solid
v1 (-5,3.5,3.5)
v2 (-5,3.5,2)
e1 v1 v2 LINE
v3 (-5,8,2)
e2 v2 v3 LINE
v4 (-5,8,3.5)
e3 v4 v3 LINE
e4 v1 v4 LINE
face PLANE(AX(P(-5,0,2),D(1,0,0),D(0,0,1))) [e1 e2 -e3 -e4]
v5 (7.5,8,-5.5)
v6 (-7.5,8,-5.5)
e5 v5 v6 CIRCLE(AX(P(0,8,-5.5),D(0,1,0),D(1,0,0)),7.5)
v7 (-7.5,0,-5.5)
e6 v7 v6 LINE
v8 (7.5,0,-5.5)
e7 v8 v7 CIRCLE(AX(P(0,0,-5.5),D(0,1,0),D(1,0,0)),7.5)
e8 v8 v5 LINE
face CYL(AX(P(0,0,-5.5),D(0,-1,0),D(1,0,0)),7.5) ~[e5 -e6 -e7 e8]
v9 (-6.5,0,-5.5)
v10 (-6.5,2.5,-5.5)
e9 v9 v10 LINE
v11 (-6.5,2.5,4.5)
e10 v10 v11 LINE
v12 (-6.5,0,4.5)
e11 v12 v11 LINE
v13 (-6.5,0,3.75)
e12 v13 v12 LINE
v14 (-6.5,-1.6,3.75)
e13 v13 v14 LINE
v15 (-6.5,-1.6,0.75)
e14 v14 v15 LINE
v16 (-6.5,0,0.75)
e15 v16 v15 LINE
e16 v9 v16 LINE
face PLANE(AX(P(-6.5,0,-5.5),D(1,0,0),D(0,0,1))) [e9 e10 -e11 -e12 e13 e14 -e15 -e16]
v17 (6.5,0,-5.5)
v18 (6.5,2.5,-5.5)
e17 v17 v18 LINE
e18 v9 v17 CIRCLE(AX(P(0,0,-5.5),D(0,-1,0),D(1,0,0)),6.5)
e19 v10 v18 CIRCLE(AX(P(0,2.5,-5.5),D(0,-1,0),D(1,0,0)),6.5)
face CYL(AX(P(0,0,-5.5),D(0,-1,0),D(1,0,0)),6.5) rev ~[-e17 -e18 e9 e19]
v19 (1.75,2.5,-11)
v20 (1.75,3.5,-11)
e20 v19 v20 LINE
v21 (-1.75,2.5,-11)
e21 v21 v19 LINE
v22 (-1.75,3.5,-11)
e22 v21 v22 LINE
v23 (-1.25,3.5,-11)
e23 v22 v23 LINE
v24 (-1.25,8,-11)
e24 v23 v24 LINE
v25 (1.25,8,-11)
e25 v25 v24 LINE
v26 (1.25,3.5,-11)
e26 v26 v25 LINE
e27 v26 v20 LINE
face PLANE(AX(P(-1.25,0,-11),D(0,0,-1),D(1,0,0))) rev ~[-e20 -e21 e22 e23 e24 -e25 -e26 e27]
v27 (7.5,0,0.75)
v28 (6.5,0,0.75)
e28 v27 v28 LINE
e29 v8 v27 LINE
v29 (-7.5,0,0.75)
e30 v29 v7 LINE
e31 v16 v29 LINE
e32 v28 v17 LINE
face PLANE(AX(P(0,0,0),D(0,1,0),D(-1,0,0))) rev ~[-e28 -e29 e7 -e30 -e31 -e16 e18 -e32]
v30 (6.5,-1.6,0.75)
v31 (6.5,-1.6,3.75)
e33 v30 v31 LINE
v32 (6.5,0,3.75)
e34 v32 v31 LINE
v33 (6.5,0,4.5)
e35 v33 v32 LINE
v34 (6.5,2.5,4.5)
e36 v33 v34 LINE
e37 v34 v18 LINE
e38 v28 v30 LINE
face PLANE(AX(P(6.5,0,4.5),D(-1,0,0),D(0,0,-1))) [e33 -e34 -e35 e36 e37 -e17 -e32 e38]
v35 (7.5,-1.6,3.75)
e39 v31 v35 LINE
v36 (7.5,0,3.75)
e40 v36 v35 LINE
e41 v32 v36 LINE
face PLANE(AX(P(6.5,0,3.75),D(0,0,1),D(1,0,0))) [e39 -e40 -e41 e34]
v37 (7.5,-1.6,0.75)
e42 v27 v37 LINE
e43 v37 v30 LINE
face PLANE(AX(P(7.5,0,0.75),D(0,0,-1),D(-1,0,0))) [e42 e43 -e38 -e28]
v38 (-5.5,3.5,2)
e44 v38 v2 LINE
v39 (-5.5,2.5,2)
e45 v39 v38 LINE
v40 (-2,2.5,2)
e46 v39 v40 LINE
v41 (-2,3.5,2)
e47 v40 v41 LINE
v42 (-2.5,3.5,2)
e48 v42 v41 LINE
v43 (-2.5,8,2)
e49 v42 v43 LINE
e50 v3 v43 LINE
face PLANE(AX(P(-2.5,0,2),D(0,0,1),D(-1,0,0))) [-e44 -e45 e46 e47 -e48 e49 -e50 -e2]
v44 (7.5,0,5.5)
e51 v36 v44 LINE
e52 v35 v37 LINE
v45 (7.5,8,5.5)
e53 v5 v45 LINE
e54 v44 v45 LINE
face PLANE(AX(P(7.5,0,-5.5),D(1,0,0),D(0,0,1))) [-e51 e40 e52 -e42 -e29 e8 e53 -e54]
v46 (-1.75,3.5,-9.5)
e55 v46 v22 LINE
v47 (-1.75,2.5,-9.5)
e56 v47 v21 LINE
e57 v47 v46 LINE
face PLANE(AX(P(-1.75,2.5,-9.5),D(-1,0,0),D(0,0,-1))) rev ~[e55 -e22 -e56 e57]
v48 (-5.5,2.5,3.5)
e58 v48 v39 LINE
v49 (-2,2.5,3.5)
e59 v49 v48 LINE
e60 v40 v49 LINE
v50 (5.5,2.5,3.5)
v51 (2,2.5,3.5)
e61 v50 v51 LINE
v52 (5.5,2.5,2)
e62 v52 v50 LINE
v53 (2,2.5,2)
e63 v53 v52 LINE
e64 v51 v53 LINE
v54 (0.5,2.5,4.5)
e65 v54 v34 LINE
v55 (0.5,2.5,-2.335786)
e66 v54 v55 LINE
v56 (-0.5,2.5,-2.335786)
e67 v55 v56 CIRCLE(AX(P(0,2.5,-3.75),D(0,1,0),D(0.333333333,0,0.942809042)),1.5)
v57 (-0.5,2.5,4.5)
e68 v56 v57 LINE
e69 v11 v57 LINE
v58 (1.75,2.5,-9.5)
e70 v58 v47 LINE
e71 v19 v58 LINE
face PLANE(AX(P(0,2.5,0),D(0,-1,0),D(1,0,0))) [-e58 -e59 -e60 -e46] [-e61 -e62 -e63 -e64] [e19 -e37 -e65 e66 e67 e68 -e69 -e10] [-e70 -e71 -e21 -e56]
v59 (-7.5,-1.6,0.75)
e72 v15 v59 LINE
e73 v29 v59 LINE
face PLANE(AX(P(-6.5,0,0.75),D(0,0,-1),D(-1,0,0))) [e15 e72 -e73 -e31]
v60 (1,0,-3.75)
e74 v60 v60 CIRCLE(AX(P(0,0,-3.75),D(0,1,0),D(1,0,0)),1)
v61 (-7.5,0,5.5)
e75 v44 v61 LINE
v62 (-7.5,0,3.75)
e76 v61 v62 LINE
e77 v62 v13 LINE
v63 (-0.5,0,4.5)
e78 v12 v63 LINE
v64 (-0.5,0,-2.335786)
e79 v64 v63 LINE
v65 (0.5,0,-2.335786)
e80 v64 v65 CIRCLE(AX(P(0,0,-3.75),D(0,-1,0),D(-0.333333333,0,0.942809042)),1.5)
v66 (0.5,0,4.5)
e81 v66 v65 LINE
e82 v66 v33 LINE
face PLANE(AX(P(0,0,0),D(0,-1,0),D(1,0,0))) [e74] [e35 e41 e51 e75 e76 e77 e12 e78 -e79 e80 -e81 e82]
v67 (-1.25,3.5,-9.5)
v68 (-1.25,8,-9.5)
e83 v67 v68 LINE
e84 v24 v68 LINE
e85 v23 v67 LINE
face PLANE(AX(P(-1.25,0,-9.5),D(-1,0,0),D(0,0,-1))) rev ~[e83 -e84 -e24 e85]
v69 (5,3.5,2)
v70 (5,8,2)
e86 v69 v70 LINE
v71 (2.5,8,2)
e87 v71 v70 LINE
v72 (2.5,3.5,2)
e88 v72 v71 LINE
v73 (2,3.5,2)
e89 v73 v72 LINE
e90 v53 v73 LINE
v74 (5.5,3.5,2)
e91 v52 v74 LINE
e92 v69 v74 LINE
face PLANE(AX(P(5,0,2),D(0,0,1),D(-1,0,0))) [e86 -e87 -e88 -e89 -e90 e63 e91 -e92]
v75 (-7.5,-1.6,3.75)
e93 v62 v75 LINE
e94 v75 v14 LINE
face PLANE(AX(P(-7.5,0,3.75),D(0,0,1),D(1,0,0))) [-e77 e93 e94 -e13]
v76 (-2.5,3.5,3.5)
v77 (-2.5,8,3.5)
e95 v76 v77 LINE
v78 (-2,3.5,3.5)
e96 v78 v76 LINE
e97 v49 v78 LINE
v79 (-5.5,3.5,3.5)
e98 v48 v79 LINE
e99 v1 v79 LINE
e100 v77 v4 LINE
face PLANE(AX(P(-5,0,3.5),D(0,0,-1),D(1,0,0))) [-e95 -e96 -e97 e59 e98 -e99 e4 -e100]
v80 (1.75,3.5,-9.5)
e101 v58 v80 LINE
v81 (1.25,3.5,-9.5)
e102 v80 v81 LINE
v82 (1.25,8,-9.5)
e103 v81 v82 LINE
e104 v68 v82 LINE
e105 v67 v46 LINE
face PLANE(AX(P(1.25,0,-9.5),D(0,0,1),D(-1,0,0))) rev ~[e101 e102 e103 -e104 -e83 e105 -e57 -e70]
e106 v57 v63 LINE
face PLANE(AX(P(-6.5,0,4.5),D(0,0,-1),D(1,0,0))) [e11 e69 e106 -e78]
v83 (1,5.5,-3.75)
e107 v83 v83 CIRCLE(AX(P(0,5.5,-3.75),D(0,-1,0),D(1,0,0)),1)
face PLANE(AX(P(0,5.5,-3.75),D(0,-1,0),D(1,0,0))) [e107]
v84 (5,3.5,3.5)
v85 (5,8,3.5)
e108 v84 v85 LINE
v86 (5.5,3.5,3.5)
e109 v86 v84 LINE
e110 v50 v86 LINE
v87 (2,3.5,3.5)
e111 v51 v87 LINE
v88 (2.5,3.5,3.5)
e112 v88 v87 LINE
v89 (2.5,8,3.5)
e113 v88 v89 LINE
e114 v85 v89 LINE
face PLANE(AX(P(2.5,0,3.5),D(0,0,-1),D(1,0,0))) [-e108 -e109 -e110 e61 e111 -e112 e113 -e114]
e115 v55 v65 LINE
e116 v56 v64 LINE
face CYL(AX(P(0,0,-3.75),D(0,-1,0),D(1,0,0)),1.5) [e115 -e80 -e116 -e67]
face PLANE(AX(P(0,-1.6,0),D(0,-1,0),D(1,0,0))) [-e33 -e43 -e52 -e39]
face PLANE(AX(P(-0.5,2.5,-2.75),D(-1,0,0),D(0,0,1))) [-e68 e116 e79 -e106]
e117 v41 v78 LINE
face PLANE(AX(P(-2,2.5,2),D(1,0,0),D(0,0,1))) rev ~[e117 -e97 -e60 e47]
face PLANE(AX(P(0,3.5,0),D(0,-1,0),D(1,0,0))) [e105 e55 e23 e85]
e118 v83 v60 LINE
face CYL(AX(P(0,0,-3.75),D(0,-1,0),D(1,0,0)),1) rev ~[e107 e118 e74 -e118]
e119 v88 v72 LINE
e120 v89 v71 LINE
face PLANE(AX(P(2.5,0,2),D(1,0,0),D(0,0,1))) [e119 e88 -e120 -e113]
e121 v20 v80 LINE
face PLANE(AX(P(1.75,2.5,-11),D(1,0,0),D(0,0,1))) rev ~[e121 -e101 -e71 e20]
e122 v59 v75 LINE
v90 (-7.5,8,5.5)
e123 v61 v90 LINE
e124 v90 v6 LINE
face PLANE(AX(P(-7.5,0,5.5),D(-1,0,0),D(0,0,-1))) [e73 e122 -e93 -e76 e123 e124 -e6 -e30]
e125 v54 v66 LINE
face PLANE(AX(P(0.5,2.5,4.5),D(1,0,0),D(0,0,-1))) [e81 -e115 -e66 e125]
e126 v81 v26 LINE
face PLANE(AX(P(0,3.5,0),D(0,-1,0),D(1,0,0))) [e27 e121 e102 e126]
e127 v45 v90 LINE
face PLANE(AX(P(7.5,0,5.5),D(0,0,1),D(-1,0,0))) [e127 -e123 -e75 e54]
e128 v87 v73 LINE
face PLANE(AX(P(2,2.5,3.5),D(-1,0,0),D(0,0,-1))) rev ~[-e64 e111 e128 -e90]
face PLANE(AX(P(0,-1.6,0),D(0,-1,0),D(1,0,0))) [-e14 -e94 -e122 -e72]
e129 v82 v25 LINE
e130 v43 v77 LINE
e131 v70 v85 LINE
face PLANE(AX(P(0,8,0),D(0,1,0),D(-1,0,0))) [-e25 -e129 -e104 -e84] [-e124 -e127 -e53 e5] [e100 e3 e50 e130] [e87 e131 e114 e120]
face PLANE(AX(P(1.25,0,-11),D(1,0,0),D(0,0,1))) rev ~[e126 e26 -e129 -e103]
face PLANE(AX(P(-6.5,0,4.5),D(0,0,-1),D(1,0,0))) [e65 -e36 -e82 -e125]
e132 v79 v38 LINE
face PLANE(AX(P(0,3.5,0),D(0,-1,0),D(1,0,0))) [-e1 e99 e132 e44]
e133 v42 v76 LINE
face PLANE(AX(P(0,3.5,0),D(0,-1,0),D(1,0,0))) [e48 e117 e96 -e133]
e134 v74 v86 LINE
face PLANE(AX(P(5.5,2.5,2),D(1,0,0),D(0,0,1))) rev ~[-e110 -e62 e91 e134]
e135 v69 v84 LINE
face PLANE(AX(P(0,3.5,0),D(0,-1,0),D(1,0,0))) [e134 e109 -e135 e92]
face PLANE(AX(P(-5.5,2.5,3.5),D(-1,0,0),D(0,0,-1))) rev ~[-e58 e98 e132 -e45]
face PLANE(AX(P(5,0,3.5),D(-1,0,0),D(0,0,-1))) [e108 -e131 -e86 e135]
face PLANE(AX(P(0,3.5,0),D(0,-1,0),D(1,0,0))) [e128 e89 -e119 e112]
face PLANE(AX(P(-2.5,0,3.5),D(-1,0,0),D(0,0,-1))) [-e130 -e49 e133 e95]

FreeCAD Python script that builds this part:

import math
import FreeCAD as App
import Part
import Sketcher

V = App.Vector
Q = App.Units.Quantity


def add_polygon(sketch, points):
    """Adds a closed chain of lines whose ends are joined by coincident constraints."""
    first, n = sketch.GeometryCount, len(points)
    for a, b in zip(points, points[1:] + points[:1]):
        sketch.addGeometry(Part.LineSegment(App.Vector(*a, 0), App.Vector(*b, 0)), False)
    for i in range(n):
        sketch.addConstraint(Sketcher.Constraint("Coincident", first + i, 2, first + (i + 1) % n, 1))

doc = App.newDocument("Part")
params = doc.addObject("Spreadsheet::Sheet", "Params")
for row, (alias, value) in enumerate([
    ("sketch1_radius", "7.5 mm"),
    ("sketch1_height", "11 mm"),
    ("pad1_length", "8 mm"),
    ("sketch2_width", "1 mm"),
    ("sketch2_height", "3 mm"),
    ("pad2_length", "1.6 mm"),
    ("sketch3_diameter", "2 mm"),
    ("sketch3_diameter2", "3 mm"),
    ("sketch3_radius", "6.5 mm"),
    ("sketch3_height", "10 mm"),
    ("pocket1_length", "2.5 mm"),
    ("sketch4_width", "2.5 mm"),
    ("sketch4_height", "1.5 mm"),
    ("pocket2_length", "10 mm"),
    ("sketch5_width", "3.5 mm"),
    ("sketch5_height", "1.5 mm"),
    ("pocket3_length", "1 mm"),
    ("sketch6_width", "1 mm"),
    ("sketch6_height", "7.25 mm"),
    ("pad3_length", "2.5 mm"),
    ("sketch7_diameter", "2 mm"),
    ("pocket4_length", "3 mm"),
], start=1):
    params.set(f"A{row}", alias)
    params.set(f"B{row}", "=" + value)
    params.setAlias(f"B{row}", alias)

body = doc.addObject("PartDesign::Body", "Body")

sketch1 = body.newObject("Sketcher::SketchObject", "Sketch")
sketch1.AttachmentSupport = (doc.getObject("XZ_Plane"), [""])
sketch1.MapMode = "FlatFace"
sketch1.addGeometry(Part.LineSegment(V(-8, 6, 0), V(8, 6, 0)), False)
sketch1.addGeometry(Part.LineSegment(V(8, 6, 0), V(8, -6, 0)), False)
sketch1.addGeometry(Part.ArcOfCircle(Part.Circle(V(0, -6, 0), V(0, 0, 1), 8), math.radians(180), math.radians(360)), False)
sketch1.addGeometry(Part.LineSegment(V(-8, -6, 0), V(-8, 6, 0)), False)
sketch1.addConstraint(Sketcher.Constraint("Coincident", 0, 2, 1, 1))
sketch1.addConstraint(Sketcher.Constraint("Tangent", 1, 2, 2, 2))
sketch1.addConstraint(Sketcher.Constraint("Tangent", 2, 1, 3, 1))
sketch1.addConstraint(Sketcher.Constraint("Coincident", 3, 2, 0, 1))
sketch1.addConstraint(Sketcher.Constraint("Horizontal", 0))
sketch1.addConstraint(Sketcher.Constraint("Vertical", 1))
sketch1.addConstraint(Sketcher.Constraint("Vertical", 3))
sketch1.addConstraint(Sketcher.Constraint("Symmetric", 0, 2, 2, 1, -1, 1))
sketch1.addConstraint(Sketcher.Constraint("Radius", 2, Q("7.5 mm")))
sketch1.addConstraint(Sketcher.Constraint("DistanceY", 1, 2, 1, 1, Q("11 mm")))
sketch1.setExpression("Constraints[8]", "Params.sketch1_radius")
sketch1.setExpression("Constraints[9]", "Params.sketch1_height")
pad1 = body.newObject("PartDesign::Pad", "Pad")
pad1.Profile = sketch1
pad1.setExpression("Length", "Params.pad1_length")
pad1.Reversed = True

sketch2 = body.newObject("Sketcher::SketchObject", "Sketch001")
sketch2.AttachmentSupport = (doc.getObject("XZ_Plane"), [""])
sketch2.MapMode = "FlatFace"
add_polygon(sketch2, [(-7.5, 3.8), (-7.5, 0.8), (-6.5, 0.8), (-6.5, 3.8)])
add_polygon(sketch2, [(7.5, 0.8), (7.5, 3.8), (6.5, 3.8), (6.5, 0.8)])
sketch2.addConstraint(Sketcher.Constraint("Vertical", 0))
sketch2.addConstraint(Sketcher.Constraint("Horizontal", 1))
sketch2.addConstraint(Sketcher.Constraint("Vertical", 2))
sketch2.addConstraint(Sketcher.Constraint("Horizontal", 3))
sketch2.addConstraint(Sketcher.Constraint("Vertical", 4))
sketch2.addConstraint(Sketcher.Constraint("Horizontal", 5))
sketch2.addConstraint(Sketcher.Constraint("Vertical", 6))
sketch2.addConstraint(Sketcher.Constraint("Horizontal", 7))
sketch2.addConstraint(Sketcher.Constraint("Symmetric", 3, 2, 4, 2, -2))
sketch2.addConstraint(Sketcher.Constraint("Symmetric", 1, 2, 6, 2, -2))
sketch2.addConstraint(Sketcher.Constraint("DistanceX", 1, 1, 1, 2, Q("1 mm")))
sketch2.addConstraint(Sketcher.Constraint("DistanceY", 0, 2, 0, 1, Q("3 mm")))
sketch2.addConstraint(Sketcher.Constraint("DistanceX", 3, 2, 4, 2, Q("15 mm")))
sketch2.addConstraint(Sketcher.Constraint("DistanceY", -1, 1, 0, 2, Q("0.75 mm")))
sketch2.setExpression("Constraints[18]", "Params.sketch2_width")
sketch2.setExpression("Constraints[19]", "Params.sketch2_height")
pad2 = body.newObject("PartDesign::Pad", "Pad001")
pad2.Profile = sketch2
pad2.setExpression("Length", "Params.pad2_length")

sketch3 = body.newObject("Sketcher::SketchObject", "Sketch002")
sketch3.AttachmentSupport = (doc.getObject("XZ_Plane"), [""])
sketch3.MapMode = "FlatFace"
sketch3.addGeometry(Part.Circle(V(0, -3.8, 0), V(0, 0, 1), 1), False)
sketch3.addGeometry(Part.LineSegment(V(6.5, 4.5, 0), V(-6.5, 4.5, 0)), False)
sketch3.addGeometry(Part.LineSegment(V(-6.5, 4.5, 0), V(-6.5, -5.5, 0)), False)
sketch3.addGeometry(Part.ArcOfCircle(Part.Circle(V(0, -5.5, 0), V(0, 0, 1), 6.5), math.radians(180), math.radians(360)), False)
sketch3.addGeometry(Part.LineSegment(V(6.5, -5.5, 0), V(6.5, 4.5, 0)), False)
sketch3.addGeometry(Part.Circle(V(0, -3.8, 0), V(0, 0, 1), 1.5), False)
sketch3.addConstraint(Sketcher.Constraint("Coincident", 1, 2, 2, 1))
sketch3.addConstraint(Sketcher.Constraint("Tangent", 2, 2, 3, 1))
sketch3.addConstraint(Sketcher.Constraint("Tangent", 3, 2, 4, 1))
sketch3.addConstraint(Sketcher.Constraint("Coincident", 4, 2, 1, 1))
sketch3.addConstraint(Sketcher.Constraint("Horizontal", 1))
sketch3.addConstraint(Sketcher.Constraint("Vertical", 2))
sketch3.addConstraint(Sketcher.Constraint("Vertical", 4))
sketch3.addConstraint(Sketcher.Constraint("Coincident", 5, 3, 0, 3))
sketch3.addConstraint(Sketcher.Constraint("PointOnObject", 0, 3, -2))
sketch3.addConstraint(Sketcher.Constraint("PointOnObject", 3, 3, -2))
sketch3.addConstraint(Sketcher.Constraint("Diameter", 0, Q("2 mm")))
sketch3.addConstraint(Sketcher.Constraint("Diameter", 5, Q("3 mm")))
sketch3.addConstraint(Sketcher.Constraint("Radius", 3, Q("6.5 mm")))
sketch3.addConstraint(Sketcher.Constraint("DistanceY", 2, 2, 2, 1, Q("10 mm")))
sketch3.addConstraint(Sketcher.Constraint("DistanceY", 0, 3, -1, 1, Q("3.75 mm")))
sketch3.addConstraint(Sketcher.Constraint("DistanceY", 3, 3, -1, 1, Q("5.5 mm")))
sketch3.setExpression("Constraints[10]", "Params.sketch3_diameter")
sketch3.setExpression("Constraints[11]", "Params.sketch3_diameter2")
sketch3.setExpression("Constraints[12]", "Params.sketch3_radius")
sketch3.setExpression("Constraints[13]", "Params.sketch3_height")
pocket1 = body.newObject("PartDesign::Pocket", "Pocket")
pocket1.Profile = sketch3
pocket1.setExpression("Length", "Params.pocket1_length")

sketch4 = body.newObject("Sketcher::SketchObject", "Sketch003")
sketch4.AttachmentSupport = (doc.getObject("XZ_Plane"), [""])
sketch4.MapMode = "FlatFace"
add_polygon(sketch4, [(-2.5, 3.5), (-5, 3.5), (-5, 2), (-2.5, 2)])
add_polygon(sketch4, [(5, 3.5), (2.5, 3.5), (2.5, 2), (5, 2)])
add_polygon(sketch4, [(-1.2, -9.5), (-1.2, -11), (1.2, -11), (1.2, -9.5)])
sketch4.addConstraint(Sketcher.Constraint("Horizontal", 0))
sketch4.addConstraint(Sketcher.Constraint("Vertical", 1))
sketch4.addConstraint(Sketcher.Constraint("Horizontal", 2))
sketch4.addConstraint(Sketcher.Constraint("Vertical", 3))
sketch4.addConstraint(Sketcher.Constraint("Horizontal", 4))
sketch4.addConstraint(Sketcher.Constraint("Vertical", 5))
sketch4.addConstraint(Sketcher.Constraint("Horizontal", 6))
sketch4.addConstraint(Sketcher.Constraint("Vertical", 7))
sketch4.addConstraint(Sketcher.Constraint("Vertical", 8))
sketch4.addConstraint(Sketcher.Constraint("Horizontal", 9))
sketch4.addConstraint(Sketcher.Constraint("Vertical", 10))
sketch4.addConstraint(Sketcher.Constraint("Horizontal", 11))
sketch4.addConstraint(Sketcher.Constraint("Symmetric", 3, 2, 4, 2, -2))
sketch4.addConstraint(Sketcher.Constraint("Symmetric", 1, 2, 6, 2, -2))
sketch4.addConstraint(Sketcher.Constraint("Equal", 6, 9))
sketch4.addConstraint(Sketcher.Constraint("Equal", 7, 8))
sketch4.addConstraint(Sketcher.Constraint("DistanceX", 0, 2, 0, 1, Q("2.5 mm")))
sketch4.addConstraint(Sketcher.Constraint("DistanceY", 1, 2, 1, 1, Q("1.5 mm")))
sketch4.addConstraint(Sketcher.Constraint("DistanceY", 8, 2, 2, 2, Q("13 mm")))
sketch4.addConstraint(Sketcher.Constraint("DistanceX", 2, 2, -1, 1, Q("2.5 mm")))
sketch4.addConstraint(Sketcher.Constraint("DistanceX", 1, 2, 8, 2, Q("3.75 mm")))
sketch4.addConstraint(Sketcher.Constraint("DistanceY", -1, 1, 1, 2, Q("2 mm")))
sketch4.setExpression("Constraints[28]", "Params.sketch4_width")
sketch4.setExpression("Constraints[29]", "Params.sketch4_height")
pocket2 = body.newObject("PartDesign::Pocket", "Pocket001")
pocket2.Profile = sketch4
pocket2.setExpression("Length", "Params.pocket2_length")

sketch5 = body.newObject("Sketcher::SketchObject", "Sketch004")
sketch5.AttachmentSupport = (doc.getObject("XZ_Plane"), [""])
sketch5.MapMode = "FlatFace"
sketch5.AttachmentOffset = App.Placement(V(0, 0, -2.5), App.Rotation())
add_polygon(sketch5, [(5.5, 2), (5.5, 3.5), (2, 3.5), (2, 2)])
add_polygon(sketch5, [(1.8, -11), (1.8, -9.5), (-1.8, -9.5), (-1.8, -11)])
add_polygon(sketch5, [(-2, 2), (-2, 3.5), (-5.5, 3.5), (-5.5, 2)])
sketch5.addConstraint(Sketcher.Constraint("Vertical", 0))
sketch5.addConstraint(Sketcher.Constraint("Horizontal", 1))
sketch5.addConstraint(Sketcher.Constraint("Vertical", 2))
sketch5.addConstraint(Sketcher.Constraint("Horizontal", 3))
sketch5.addConstraint(Sketcher.Constraint("Vertical", 4))
sketch5.addConstraint(Sketcher.Constraint("Horizontal", 5))
sketch5.addConstraint(Sketcher.Constraint("Vertical", 6))
sketch5.addConstraint(Sketcher.Constraint("Horizontal", 7))
sketch5.addConstraint(Sketcher.Constraint("Vertical", 8))
sketch5.addConstraint(Sketcher.Constraint("Horizontal", 9))
sketch5.addConstraint(Sketcher.Constraint("Vertical", 10))
sketch5.addConstraint(Sketcher.Constraint("Horizontal", 11))
sketch5.addConstraint(Sketcher.Constraint("Symmetric", 1, 2, 8, 2, -2))
sketch5.addConstraint(Sketcher.Constraint("Symmetric", 3, 2, 10, 2, -2))
sketch5.addConstraint(Sketcher.Constraint("Equal", 3, 5))
sketch5.addConstraint(Sketcher.Constraint("Equal", 2, 4))
sketch5.addConstraint(Sketcher.Constraint("DistanceX", 1, 2, 1, 1, Q("3.5 mm")))
sketch5.addConstraint(Sketcher.Constraint("DistanceY", 0, 1, 0, 2, Q("1.5 mm")))
sketch5.addConstraint(Sketcher.Constraint("DistanceX", -1, 1, 1, 2, Q("2 mm")))
sketch5.addConstraint(Sketcher.Constraint("DistanceY", -1, 1, 2, 2, Q("2 mm")))
sketch5.addConstraint(Sketcher.Constraint("DistanceY", 6, 2, -1, 1, Q("11 mm")))
sketch5.addConstraint(Sketcher.Constraint("DistanceX", -1, 1, 4, 2, Q("1.75 mm")))
sketch5.setExpression("Constraints[28]", "Params.sketch5_width")
sketch5.setExpression("Constraints[29]", "Params.sketch5_height")
pocket3 = body.newObject("PartDesign::Pocket", "Pocket002")
pocket3.Profile = sketch5
pocket3.setExpression("Length", "Params.pocket3_length")

sketch6 = body.newObject("Sketcher::SketchObject", "Sketch005")
sketch6.AttachmentSupport = (doc.getObject("XZ_Plane"), [""])
sketch6.MapMode = "FlatFace"
sketch6.AttachmentOffset = App.Placement(V(0, 0, -2.5), App.Rotation())
add_polygon(sketch6, [(0.5, 4.5), (-0.5, 4.5), (-0.5, -2.8), (0.5, -2.8)])
sketch6.addConstraint(Sketcher.Constraint("Horizontal", 0))
sketch6.addConstraint(Sketcher.Constraint("Vertical", 1))
sketch6.addConstraint(Sketcher.Constraint("Horizontal", 2))
sketch6.addConstraint(Sketcher.Constraint("Vertical", 3))
sketch6.addConstraint(Sketcher.Constraint("DistanceX", 0, 2, 0, 1, Q("1 mm")))
sketch6.addConstraint(Sketcher.Constraint("DistanceY", 1, 2, 1, 1, Q("7.25 mm")))
sketch6.addConstraint(Sketcher.Constraint("DistanceX", 0, 2, -1, 1, Q("0.5 mm")))
sketch6.addConstraint(Sketcher.Constraint("DistanceY", -1, 1, 0, 2, Q("4.5 mm")))
sketch6.setExpression("Constraints[8]", "Params.sketch6_width")
sketch6.setExpression("Constraints[9]", "Params.sketch6_height")
pad3 = body.newObject("PartDesign::Pad", "Pad002")
pad3.Profile = sketch6
pad3.setExpression("Length", "Params.pad3_length")

sketch7 = body.newObject("Sketcher::SketchObject", "Sketch006")
sketch7.AttachmentSupport = (doc.getObject("XZ_Plane"), [""])
sketch7.MapMode = "FlatFace"
sketch7.AttachmentOffset = App.Placement(V(0, 0, -2.5), App.Rotation())
sketch7.addGeometry(Part.Circle(V(0, -3.8, 0), V(0, 0, 1), 1), False)
sketch7.addConstraint(Sketcher.Constraint("PointOnObject", 0, 3, -2))
sketch7.addConstraint(Sketcher.Constraint("Diameter", 0, Q("2 mm")))
sketch7.addConstraint(Sketcher.Constraint("DistanceY", 0, 3, -1, 1, Q("3.75 mm")))
sketch7.setExpression("Constraints[1]", "Params.sketch7_diameter")
pocket4 = body.newObject("PartDesign::Pocket", "Pocket003")
pocket4.Profile = sketch7
pocket4.setExpression("Length", "Params.pocket4_length")

doc.recompute()
